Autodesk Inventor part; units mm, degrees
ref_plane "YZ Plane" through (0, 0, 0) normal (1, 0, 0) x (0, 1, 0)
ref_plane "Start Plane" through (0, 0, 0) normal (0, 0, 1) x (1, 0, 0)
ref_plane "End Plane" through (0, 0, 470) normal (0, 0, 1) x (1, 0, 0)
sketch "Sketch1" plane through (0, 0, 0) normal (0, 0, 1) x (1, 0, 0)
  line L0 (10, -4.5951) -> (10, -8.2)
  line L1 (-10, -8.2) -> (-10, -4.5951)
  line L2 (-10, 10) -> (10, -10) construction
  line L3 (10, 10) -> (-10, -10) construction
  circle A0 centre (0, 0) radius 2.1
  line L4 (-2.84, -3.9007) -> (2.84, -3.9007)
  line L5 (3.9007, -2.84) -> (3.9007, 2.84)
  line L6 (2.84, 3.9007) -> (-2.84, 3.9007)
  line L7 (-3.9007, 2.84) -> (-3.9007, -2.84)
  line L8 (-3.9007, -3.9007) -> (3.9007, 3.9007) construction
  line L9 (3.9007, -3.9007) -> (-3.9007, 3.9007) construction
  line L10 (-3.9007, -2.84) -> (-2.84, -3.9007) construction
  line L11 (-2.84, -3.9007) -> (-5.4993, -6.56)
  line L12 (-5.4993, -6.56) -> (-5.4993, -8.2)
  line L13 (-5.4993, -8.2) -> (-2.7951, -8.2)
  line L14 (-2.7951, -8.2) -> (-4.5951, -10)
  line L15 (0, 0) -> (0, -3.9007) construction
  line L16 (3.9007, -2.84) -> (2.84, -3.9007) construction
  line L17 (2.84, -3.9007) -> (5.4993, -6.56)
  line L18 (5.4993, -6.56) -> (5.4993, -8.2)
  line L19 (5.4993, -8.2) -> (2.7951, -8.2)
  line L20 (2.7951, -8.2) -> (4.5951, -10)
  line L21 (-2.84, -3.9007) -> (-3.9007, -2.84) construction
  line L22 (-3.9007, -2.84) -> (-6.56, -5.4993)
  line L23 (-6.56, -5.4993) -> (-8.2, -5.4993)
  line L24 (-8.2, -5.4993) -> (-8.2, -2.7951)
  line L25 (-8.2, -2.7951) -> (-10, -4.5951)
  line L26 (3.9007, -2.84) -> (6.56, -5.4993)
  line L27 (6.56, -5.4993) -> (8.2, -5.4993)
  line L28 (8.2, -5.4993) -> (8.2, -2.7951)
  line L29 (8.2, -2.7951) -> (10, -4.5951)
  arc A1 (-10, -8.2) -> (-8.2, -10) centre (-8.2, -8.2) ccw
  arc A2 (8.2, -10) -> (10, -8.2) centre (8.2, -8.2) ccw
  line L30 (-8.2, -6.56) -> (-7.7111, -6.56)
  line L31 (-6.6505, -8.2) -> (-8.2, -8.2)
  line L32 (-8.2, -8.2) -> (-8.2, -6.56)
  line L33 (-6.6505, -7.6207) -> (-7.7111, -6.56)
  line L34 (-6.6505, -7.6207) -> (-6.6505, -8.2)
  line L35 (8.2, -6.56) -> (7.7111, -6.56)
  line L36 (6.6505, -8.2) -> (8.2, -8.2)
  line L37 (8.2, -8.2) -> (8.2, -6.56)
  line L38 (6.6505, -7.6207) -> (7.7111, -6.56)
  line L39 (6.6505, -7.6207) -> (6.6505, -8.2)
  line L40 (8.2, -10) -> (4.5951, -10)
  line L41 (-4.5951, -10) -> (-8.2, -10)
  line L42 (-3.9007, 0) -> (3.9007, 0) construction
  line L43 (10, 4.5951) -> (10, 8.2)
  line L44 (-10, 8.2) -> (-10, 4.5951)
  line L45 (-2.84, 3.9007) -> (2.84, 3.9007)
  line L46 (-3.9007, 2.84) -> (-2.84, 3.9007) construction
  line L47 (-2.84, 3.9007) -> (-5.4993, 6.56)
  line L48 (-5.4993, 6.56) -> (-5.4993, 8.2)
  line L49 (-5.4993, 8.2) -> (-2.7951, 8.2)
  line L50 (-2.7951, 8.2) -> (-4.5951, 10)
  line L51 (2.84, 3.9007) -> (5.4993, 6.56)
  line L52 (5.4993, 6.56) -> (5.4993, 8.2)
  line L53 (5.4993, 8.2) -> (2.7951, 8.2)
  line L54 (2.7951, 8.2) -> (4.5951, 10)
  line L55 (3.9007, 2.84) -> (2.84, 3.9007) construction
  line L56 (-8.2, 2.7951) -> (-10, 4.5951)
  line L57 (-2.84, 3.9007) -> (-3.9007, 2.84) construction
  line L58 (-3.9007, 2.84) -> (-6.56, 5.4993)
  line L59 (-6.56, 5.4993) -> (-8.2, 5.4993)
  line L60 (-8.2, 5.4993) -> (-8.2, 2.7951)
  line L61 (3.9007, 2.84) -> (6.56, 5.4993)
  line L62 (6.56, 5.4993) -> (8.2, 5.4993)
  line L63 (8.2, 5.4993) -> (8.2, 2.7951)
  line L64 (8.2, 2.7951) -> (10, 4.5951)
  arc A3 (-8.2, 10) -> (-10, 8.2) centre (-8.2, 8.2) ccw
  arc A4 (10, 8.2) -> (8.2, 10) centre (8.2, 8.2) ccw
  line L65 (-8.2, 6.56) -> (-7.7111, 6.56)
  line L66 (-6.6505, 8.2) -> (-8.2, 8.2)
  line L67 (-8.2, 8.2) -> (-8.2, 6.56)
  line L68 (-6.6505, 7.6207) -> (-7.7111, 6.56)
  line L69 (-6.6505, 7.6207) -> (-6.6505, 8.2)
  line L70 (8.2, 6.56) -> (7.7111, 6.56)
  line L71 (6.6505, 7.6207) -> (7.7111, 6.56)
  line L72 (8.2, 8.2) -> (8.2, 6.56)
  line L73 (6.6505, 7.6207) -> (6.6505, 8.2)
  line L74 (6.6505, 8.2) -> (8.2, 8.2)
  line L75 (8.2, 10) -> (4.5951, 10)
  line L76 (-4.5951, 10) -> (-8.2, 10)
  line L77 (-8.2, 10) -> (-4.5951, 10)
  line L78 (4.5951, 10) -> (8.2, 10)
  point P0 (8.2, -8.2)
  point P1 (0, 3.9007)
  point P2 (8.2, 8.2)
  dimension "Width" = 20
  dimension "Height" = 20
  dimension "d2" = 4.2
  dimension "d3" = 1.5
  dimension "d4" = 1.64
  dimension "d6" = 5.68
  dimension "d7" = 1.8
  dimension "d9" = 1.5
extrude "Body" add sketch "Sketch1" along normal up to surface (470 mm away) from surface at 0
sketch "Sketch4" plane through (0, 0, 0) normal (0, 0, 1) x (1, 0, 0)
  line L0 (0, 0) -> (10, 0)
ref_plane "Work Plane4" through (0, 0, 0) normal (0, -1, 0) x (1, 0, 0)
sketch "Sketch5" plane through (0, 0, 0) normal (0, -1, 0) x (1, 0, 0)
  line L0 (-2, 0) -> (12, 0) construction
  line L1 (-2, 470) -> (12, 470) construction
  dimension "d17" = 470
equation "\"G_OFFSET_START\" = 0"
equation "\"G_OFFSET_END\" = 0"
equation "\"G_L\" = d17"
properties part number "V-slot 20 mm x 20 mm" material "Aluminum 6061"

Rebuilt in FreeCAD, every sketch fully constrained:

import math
import FreeCAD as App
import Part
import Sketcher

doc = App.newDocument("Part")
body = doc.addObject("PartDesign::Body", "Body")

# Sketch on XY plane
sketch1 = body.newObject("Sketcher::SketchObject", "Sketch")
sketch1.AttachmentSupport = (doc.getObject("XY_Plane"), [""])
sketch1.MapMode = "FlatFace"
sketch1.addGeometry([
    Part.LineSegment(App.Vector(10, -8.2, 0), App.Vector(10, -4.6, 0)),  # 0
    Part.LineSegment(App.Vector(10, -4.6, 0), App.Vector(8.2, -2.8, 0)),  # 1
    Part.LineSegment(App.Vector(8.2, -2.8, 0), App.Vector(8.2, -5.5, 0)),  # 2
    Part.LineSegment(App.Vector(8.2, -5.5, 0), App.Vector(6.56, -5.5, 0)),  # 3
    Part.LineSegment(App.Vector(6.56, -5.5, 0), App.Vector(3.9, -2.84, 0)),  # 4
    Part.LineSegment(App.Vector(3.9, -2.84, 0), App.Vector(3.9, 2.84, 0)),  # 5
    Part.LineSegment(App.Vector(3.9, 2.84, 0), App.Vector(6.56, 5.5, 0)),  # 6
    Part.LineSegment(App.Vector(6.56, 5.5, 0), App.Vector(8.2, 5.5, 0)),  # 7
    Part.LineSegment(App.Vector(8.2, 5.5, 0), App.Vector(8.2, 2.8, 0)),  # 8
    Part.LineSegment(App.Vector(8.2, 2.8, 0), App.Vector(10, 4.6, 0)),  # 9
    Part.LineSegment(App.Vector(10, 4.6, 0), App.Vector(10, 8.2, 0)),  # 10
    Part.ArcOfCircle(Part.Circle(App.Vector(8.2, 8.2, 0), App.Vector(0, 0, 1), 1.8), math.radians(0), math.radians(90)),  # 11
    Part.LineSegment(App.Vector(8.2, 10, 0), App.Vector(4.6, 10, 0)),  # 12
    Part.LineSegment(App.Vector(4.6, 10, 0), App.Vector(2.8, 8.2, 0)),  # 13
    Part.LineSegment(App.Vector(2.8, 8.2, 0), App.Vector(5.5, 8.2, 0)),  # 14
    Part.LineSegment(App.Vector(5.5, 8.2, 0), App.Vector(5.5, 6.56, 0)),  # 15
    Part.LineSegment(App.Vector(5.5, 6.56, 0), App.Vector(2.84, 3.9, 0)),  # 16
    Part.LineSegment(App.Vector(2.84, 3.9, 0), App.Vector(-2.84, 3.9, 0)),  # 17
    Part.LineSegment(App.Vector(-2.84, 3.9, 0), App.Vector(-5.5, 6.56, 0)),  # 18
    Part.LineSegment(App.Vector(-5.5, 6.56, 0), App.Vector(-5.5, 8.2, 0)),  # 19
    Part.LineSegment(App.Vector(-5.5, 8.2, 0), App.Vector(-2.8, 8.2, 0)),  # 20
    Part.LineSegment(App.Vector(-2.8, 8.2, 0), App.Vector(-4.6, 10, 0)),  # 21
    Part.LineSegment(App.Vector(-4.6, 10, 0), App.Vector(-8.2, 10, 0)),  # 22
    Part.ArcOfCircle(Part.Circle(App.Vector(-8.2, 8.2, 0), App.Vector(0, 0, 1), 1.8), math.radians(90), math.radians(180)),  # 23
    Part.LineSegment(App.Vector(-10, 8.2, 0), App.Vector(-10, 4.6, 0)),  # 24
    Part.LineSegment(App.Vector(-10, 4.6, 0), App.Vector(-8.2, 2.8, 0)),  # 25
    Part.LineSegment(App.Vector(-8.2, 2.8, 0), App.Vector(-8.2, 5.5, 0)),  # 26
    Part.LineSegment(App.Vector(-8.2, 5.5, 0), App.Vector(-6.56, 5.5, 0)),  # 27
    Part.LineSegment(App.Vector(-6.56, 5.5, 0), App.Vector(-3.9, 2.84, 0)),  # 28
    Part.LineSegment(App.Vector(-3.9, 2.84, 0), App.Vector(-3.9, -2.84, 0)),  # 29
    Part.LineSegment(App.Vector(-3.9, -2.84, 0), App.Vector(-6.56, -5.5, 0)),  # 30
    Part.LineSegment(App.Vector(-6.56, -5.5, 0), App.Vector(-8.2, -5.5, 0)),  # 31
    Part.LineSegment(App.Vector(-8.2, -5.5, 0), App.Vector(-8.2, -2.8, 0)),  # 32
    Part.LineSegment(App.Vector(-8.2, -2.8, 0), App.Vector(-10, -4.6, 0)),  # 33
    Part.LineSegment(App.Vector(-10, -4.6, 0), App.Vector(-10, -8.2, 0)),  # 34
    Part.ArcOfCircle(Part.Circle(App.Vector(-8.2, -8.2, 0), App.Vector(0, 0, 1), 1.8), math.radians(180), math.radians(270)),  # 35
    Part.LineSegment(App.Vector(-8.2, -10, 0), App.Vector(-4.6, -10, 0)),  # 36
    Part.LineSegment(App.Vector(-4.6, -10, 0), App.Vector(-2.8, -8.2, 0)),  # 37
    Part.LineSegment(App.Vector(-2.8, -8.2, 0), App.Vector(-5.5, -8.2, 0)),  # 38
    Part.LineSegment(App.Vector(-5.5, -8.2, 0), App.Vector(-5.5, -6.56, 0)),  # 39
    Part.LineSegment(App.Vector(-5.5, -6.56, 0), App.Vector(-2.84, -3.9, 0)),  # 40
    Part.LineSegment(App.Vector(-2.84, -3.9, 0), App.Vector(2.84, -3.9, 0)),  # 41
    Part.LineSegment(App.Vector(2.84, -3.9, 0), App.Vector(5.5, -6.56, 0)),  # 42
    Part.LineSegment(App.Vector(5.5, -6.56, 0), App.Vector(5.5, -8.2, 0)),  # 43
    Part.LineSegment(App.Vector(5.5, -8.2, 0), App.Vector(2.8, -8.2, 0)),  # 44
    Part.LineSegment(App.Vector(2.8, -8.2, 0), App.Vector(4.6, -10, 0)),  # 45
    Part.LineSegment(App.Vector(4.6, -10, 0), App.Vector(8.2, -10, 0)),  # 46
    Part.ArcOfCircle(Part.Circle(App.Vector(8.2, -8.2, 0), App.Vector(0, 0, 1), 1.8), math.radians(-90), math.radians(0)),  # 47
    Part.LineSegment(App.Vector(-8.2, -8.2, 0), App.Vector(-8.2, -6.56, 0)),  # 48
    Part.LineSegment(App.Vector(-8.2, -6.56, 0), App.Vector(-7.71, -6.56, 0)),  # 49
    Part.LineSegment(App.Vector(-7.71, -6.56, 0), App.Vector(-6.65, -7.62, 0)),  # 50
    Part.LineSegment(App.Vector(-6.65, -7.62, 0), App.Vector(-6.65, -8.2, 0)),  # 51
    Part.LineSegment(App.Vector(-6.65, -8.2, 0), App.Vector(-8.2, -8.2, 0)),  # 52
    Part.LineSegment(App.Vector(7.71, -6.56, 0), App.Vector(8.2, -6.56, 0)),  # 53
    Part.LineSegment(App.Vector(8.2, -6.56, 0), App.Vector(8.2, -8.2, 0)),  # 54
    Part.LineSegment(App.Vector(8.2, -8.2, 0), App.Vector(6.65, -8.2, 0)),  # 55
    Part.LineSegment(App.Vector(6.65, -8.2, 0), App.Vector(6.65, -7.62, 0)),  # 56
    Part.LineSegment(App.Vector(6.65, -7.62, 0), App.Vector(7.71, -6.56, 0)),  # 57
    Part.LineSegment(App.Vector(-7.71, 6.56, 0), App.Vector(-8.2, 6.56, 0)),  # 58
    Part.LineSegment(App.Vector(-8.2, 6.56, 0), App.Vector(-8.2, 8.2, 0)),  # 59
    Part.LineSegment(App.Vector(-8.2, 8.2, 0), App.Vector(-6.65, 8.2, 0)),  # 60
    Part.LineSegment(App.Vector(-6.65, 8.2, 0), App.Vector(-6.65, 7.62, 0)),  # 61
    Part.LineSegment(App.Vector(-6.65, 7.62, 0), App.Vector(-7.71, 6.56, 0)),  # 62
    Part.Circle(App.Vector(0, 0, 0), App.Vector(0, 0, 1), 2.1),  # 63
    Part.LineSegment(App.Vector(8.2, 8.2, 0), App.Vector(8.2, 6.56, 0)),  # 64
    Part.LineSegment(App.Vector(8.2, 6.56, 0), App.Vector(7.71, 6.56, 0)),  # 65
    Part.LineSegment(App.Vector(7.71, 6.56, 0), App.Vector(6.65, 7.62, 0)),  # 66
    Part.LineSegment(App.Vector(6.65, 7.62, 0), App.Vector(6.65, 8.2, 0)),  # 67
    Part.LineSegment(App.Vector(6.65, 8.2, 0), App.Vector(8.2, 8.2, 0)),  # 68
], False)
sketch1.addConstraint([
    Sketcher.Constraint("Coincident", 0, 2, 1, 1),
    Sketcher.Constraint("Coincident", 1, 2, 2, 1),
    Sketcher.Constraint("Coincident", 2, 2, 3, 1),
    Sketcher.Constraint("Coincident", 3, 2, 4, 1),
    Sketcher.Constraint("Coincident", 4, 2, 5, 1),
    Sketcher.Constraint("Coincident", 5, 2, 6, 1),
    Sketcher.Constraint("Coincident", 6, 2, 7, 1),
    Sketcher.Constraint("Coincident", 7, 2, 8, 1),
    Sketcher.Constraint("Coincident", 8, 2, 9, 1),
    Sketcher.Constraint("Coincident", 9, 2, 10, 1),
    Sketcher.Constraint("Tangent", 10, 2, 11, 1),
    Sketcher.Constraint("Tangent", 11, 2, 12, 1),
    Sketcher.Constraint("Coincident", 12, 2, 13, 1),
    Sketcher.Constraint("Coincident", 13, 2, 14, 1),
    Sketcher.Constraint("Coincident", 14, 2, 15, 1),
    Sketcher.Constraint("Coincident", 15, 2, 16, 1),
    Sketcher.Constraint("Coincident", 16, 2, 17, 1),
    Sketcher.Constraint("Coincident", 17, 2, 18, 1),
    Sketcher.Constraint("Coincident", 18, 2, 19, 1),
    Sketcher.Constraint("Coincident", 19, 2, 20, 1),
    Sketcher.Constraint("Coincident", 20, 2, 21, 1),
    Sketcher.Constraint("Coincident", 21, 2, 22, 1),
    Sketcher.Constraint("Tangent", 22, 2, 23, 1),
    Sketcher.Constraint("Tangent", 23, 2, 24, 1),
    Sketcher.Constraint("Coincident", 24, 2, 25, 1),
    Sketcher.Constraint("Coincident", 25, 2, 26, 1),
    Sketcher.Constraint("Coincident", 26, 2, 27, 1),
    Sketcher.Constraint("Coincident", 27, 2, 28, 1),
    Sketcher.Constraint("Coincident", 28, 2, 29, 1),
    Sketcher.Constraint("Coincident", 29, 2, 30, 1),
    Sketcher.Constraint("Coincident", 30, 2, 31, 1),
    Sketcher.Constraint("Coincident", 31, 2, 32, 1),
    Sketcher.Constraint("Coincident", 32, 2, 33, 1),
    Sketcher.Constraint("Coincident", 33, 2, 34, 1),
    Sketcher.Constraint("Tangent", 34, 2, 35, 1),
    Sketcher.Constraint("Tangent", 35, 2, 36, 1),
    Sketcher.Constraint("Coincident", 36, 2, 37, 1),
    Sketcher.Constraint("Coincident", 37, 2, 38, 1),
    Sketcher.Constraint("Coincident", 38, 2, 39, 1),
    Sketcher.Constraint("Coincident", 39, 2, 40, 1),
    Sketcher.Constraint("Coincident", 40, 2, 41, 1),
    Sketcher.Constraint("Coincident", 41, 2, 42, 1),
    Sketcher.Constraint("Coincident", 42, 2, 43, 1),
    Sketcher.Constraint("Coincident", 43, 2, 44, 1),
    Sketcher.Constraint("Coincident", 44, 2, 45, 1),
    Sketcher.Constraint("Coincident", 45, 2, 46, 1),
    Sketcher.Constraint("Tangent", 46, 2, 47, 1),
    Sketcher.Constraint("Tangent", 47, 2, 0, 1),
    Sketcher.Constraint("Coincident", 48, 2, 49, 1),
    Sketcher.Constraint("Coincident", 49, 2, 50, 1),
    Sketcher.Constraint("Coincident", 50, 2, 51, 1),
    Sketcher.Constraint("Coincident", 51, 2, 52, 1),
    Sketcher.Constraint("Coincident", 52, 2, 48, 1),
    Sketcher.Constraint("Coincident", 53, 2, 54, 1),
    Sketcher.Constraint("Coincident", 54, 2, 55, 1),
    Sketcher.Constraint("Coincident", 55, 2, 56, 1),
    Sketcher.Constraint("Coincident", 56, 2, 57, 1),
    Sketcher.Constraint("Coincident", 57, 2, 53, 1),
    Sketcher.Constraint("Coincident", 58, 2, 59, 1),
    Sketcher.Constraint("Coincident", 59, 2, 60, 1),
    Sketcher.Constraint("Coincident", 60, 2, 61, 1),
    Sketcher.Constraint("Coincident", 61, 2, 62, 1),
    Sketcher.Constraint("Coincident", 62, 2, 58, 1),
    Sketcher.Constraint("Coincident", 64, 2, 65, 1),
    Sketcher.Constraint("Coincident", 65, 2, 66, 1),
    Sketcher.Constraint("Coincident", 66, 2, 67, 1),
    Sketcher.Constraint("Coincident", 67, 2, 68, 1),
    Sketcher.Constraint("Coincident", 68, 2, 64, 1),
    Sketcher.Constraint("Vertical", 0),
    Sketcher.Constraint("Vertical", 2),
    Sketcher.Constraint("Horizontal", 3),
    Sketcher.Constraint("Vertical", 5),
    Sketcher.Constraint("Horizontal", 7),
    Sketcher.Constraint("Vertical", 8),
    Sketcher.Constraint("Vertical", 10),
    Sketcher.Constraint("Horizontal", 12),
    Sketcher.Constraint("Horizontal", 14),
    Sketcher.Constraint("Vertical", 15),
    Sketcher.Constraint("Horizontal", 17),
    Sketcher.Constraint("Vertical", 19),
    Sketcher.Constraint("Horizontal", 20),
    Sketcher.Constraint("Horizontal", 22),
    Sketcher.Constraint("Vertical", 24),
    Sketcher.Constraint("Vertical", 26),
    Sketcher.Constraint("Horizontal", 27),
    Sketcher.Constraint("Vertical", 29),
    Sketcher.Constraint("Horizontal", 31),
    Sketcher.Constraint("Vertical", 32),
    Sketcher.Constraint("Vertical", 34),
    Sketcher.Constraint("Horizontal", 36),
    Sketcher.Constraint("Horizontal", 38),
    Sketcher.Constraint("Vertical", 39),
    Sketcher.Constraint("Horizontal", 41),
    Sketcher.Constraint("Vertical", 43),
    Sketcher.Constraint("Horizontal", 44),
    Sketcher.Constraint("Horizontal", 46),
    Sketcher.Constraint("Vertical", 48),
    Sketcher.Constraint("Horizontal", 49),
    Sketcher.Constraint("Vertical", 51),
    Sketcher.Constraint("Horizontal", 52),
    Sketcher.Constraint("Horizontal", 53),
    Sketcher.Constraint("Vertical", 54),
    Sketcher.Constraint("Horizontal", 55),
    Sketcher.Constraint("Vertical", 56),
    Sketcher.Constraint("Horizontal", 58),
    Sketcher.Constraint("Vertical", 59),
    Sketcher.Constraint("Horizontal", 60),
    Sketcher.Constraint("Vertical", 61),
    Sketcher.Constraint("Vertical", 64),
    Sketcher.Constraint("Horizontal", 65),
    Sketcher.Constraint("Vertical", 67),
    Sketcher.Constraint("Horizontal", 68),
    Sketcher.Constraint("Coincident", 63, 3, -1, 1),
    Sketcher.Constraint("Coincident", 52, 2, 35, 3),
    Sketcher.Constraint("Coincident", 54, 2, 47, 3),
    Sketcher.Constraint("Coincident", 59, 2, 23, 3),
    Sketcher.Constraint("Coincident", 68, 2, 11, 3),
    Sketcher.Constraint("Equal", 11, 23),
    Sketcher.Constraint("Equal", 23, 35),
    Sketcher.Constraint("Equal", 35, 47),
    Sketcher.Constraint("Symmetric", 11, 3, 35, 3, -1, 1),
    Sketcher.Constraint("Symmetric", 23, 3, 47, 3, -1, 1),
    Sketcher.Constraint("Symmetric", 1, 2, 25, 2, -1, 1),
    Sketcher.Constraint("Symmetric", 3, 2, 27, 2, -1, 1),
    Sketcher.Constraint("Symmetric", 4, 2, 28, 2, -1, 1),
    Sketcher.Constraint("Symmetric", 6, 2, 30, 2, -1, 1),
    Sketcher.Constraint("Symmetric", 8, 2, 32, 2, -1, 1),
    Sketcher.Constraint("Symmetric", 13, 2, 37, 2, -1, 1),
    Sketcher.Constraint("Symmetric", 15, 2, 39, 2, -1, 1),
    Sketcher.Constraint("Symmetric", 16, 2, 40, 2, -1, 1),
    Sketcher.Constraint("Symmetric", 18, 2, 42, 2, -1, 1),
    Sketcher.Constraint("Symmetric", 20, 2, 44, 2, -1, 1),
    Sketcher.Constraint("Symmetric", 56, 2, 61, 2, -1, 1),
    Sketcher.Constraint("Symmetric", 57, 2, 62, 2, -1, 1),
    Sketcher.Constraint("Symmetric", 49, 2, 65, 2, -1, 1),
    Sketcher.Constraint("Symmetric", 50, 2, 66, 2, -1, 1),
    Sketcher.Constraint("Symmetric", 11, 3, 23, 3, -2),
    Sketcher.Constraint("Symmetric", 15, 2, 18, 2, -2),
    Sketcher.Constraint("Symmetric", 13, 2, 20, 2, -2),
    Sketcher.Constraint("Symmetric", 8, 2, 25, 2, -2),
    Sketcher.Constraint("Symmetric", 6, 2, 27, 2, -2),
    Sketcher.Constraint("Symmetric", 50, 2, 56, 2, -2),
    Sketcher.Constraint("Symmetric", 49, 2, 57, 2, -2),
    Sketcher.Constraint("Parallel", 1, 4),
    Sketcher.Constraint("Perpendicular", 4, 6),
    Sketcher.Constraint("Parallel", 6, 9),
    Sketcher.Constraint("Parallel", 9, 13),
    Sketcher.Constraint("Parallel", 13, 16),
    Sketcher.Constraint("Perpendicular", 16, 18),
    Sketcher.Constraint("Parallel", 18, 21),
    Sketcher.Constraint("Parallel", 21, 25),
    Sketcher.Constraint("Perpendicular", 28, 30),
    Sketcher.Constraint("Parallel", 30, 33),
    Sketcher.Constraint("Parallel", 33, 37),
    Sketcher.Constraint("Perpendicular", 40, 42),
    Sketcher.Constraint("Parallel", 42, 45),
    Sketcher.Constraint("Parallel", 45, 50),
    Sketcher.Constraint("Perpendicular", 50, 57),
    Sketcher.Constraint("Horizontal", 10, 2, 13, 2),
    Sketcher.Constraint("Horizontal", 42, 2, 48, 2),
    Sketcher.Constraint("Vertical", 47, 3, 1, 2),
    Sketcher.Constraint("Equal", 46, 0),
    Sketcher.Constraint("Equal", 44, 2),
    Sketcher.Constraint("Equal", 41, 5),
    Sketcher.Constraint("Equal", 31, 15),
    Sketcher.Constraint("Equal", 6, 16),
    Sketcher.Constraint("Diameter", 63, 4.2),
    Sketcher.Constraint("Radius", 11, 1.8),
    Sketcher.Constraint("Distance", 50, 1.5),
    Sketcher.Constraint("DistanceX", 3, 2, 3, 1, 1.64),
    Sketcher.Constraint("DistanceX", 17, 2, 17, 1, 5.68),
    Sketcher.Constraint("DistanceX", -1, 1, 0, 2, 10.0),
    Sketcher.Constraint("DistanceX", 12, 2, 12, 1, 3.605),
    Sketcher.Constraint("DistanceX", 49, 1, 49, 2, 0.489),
    Sketcher.Constraint("DistanceX", 14, 1, 14, 2, 2.7042),
])
pad1 = body.newObject("PartDesign::Pad", "Pad")
pad1.Profile = sketch1
pad1.Length = 470

doc.recompute()
